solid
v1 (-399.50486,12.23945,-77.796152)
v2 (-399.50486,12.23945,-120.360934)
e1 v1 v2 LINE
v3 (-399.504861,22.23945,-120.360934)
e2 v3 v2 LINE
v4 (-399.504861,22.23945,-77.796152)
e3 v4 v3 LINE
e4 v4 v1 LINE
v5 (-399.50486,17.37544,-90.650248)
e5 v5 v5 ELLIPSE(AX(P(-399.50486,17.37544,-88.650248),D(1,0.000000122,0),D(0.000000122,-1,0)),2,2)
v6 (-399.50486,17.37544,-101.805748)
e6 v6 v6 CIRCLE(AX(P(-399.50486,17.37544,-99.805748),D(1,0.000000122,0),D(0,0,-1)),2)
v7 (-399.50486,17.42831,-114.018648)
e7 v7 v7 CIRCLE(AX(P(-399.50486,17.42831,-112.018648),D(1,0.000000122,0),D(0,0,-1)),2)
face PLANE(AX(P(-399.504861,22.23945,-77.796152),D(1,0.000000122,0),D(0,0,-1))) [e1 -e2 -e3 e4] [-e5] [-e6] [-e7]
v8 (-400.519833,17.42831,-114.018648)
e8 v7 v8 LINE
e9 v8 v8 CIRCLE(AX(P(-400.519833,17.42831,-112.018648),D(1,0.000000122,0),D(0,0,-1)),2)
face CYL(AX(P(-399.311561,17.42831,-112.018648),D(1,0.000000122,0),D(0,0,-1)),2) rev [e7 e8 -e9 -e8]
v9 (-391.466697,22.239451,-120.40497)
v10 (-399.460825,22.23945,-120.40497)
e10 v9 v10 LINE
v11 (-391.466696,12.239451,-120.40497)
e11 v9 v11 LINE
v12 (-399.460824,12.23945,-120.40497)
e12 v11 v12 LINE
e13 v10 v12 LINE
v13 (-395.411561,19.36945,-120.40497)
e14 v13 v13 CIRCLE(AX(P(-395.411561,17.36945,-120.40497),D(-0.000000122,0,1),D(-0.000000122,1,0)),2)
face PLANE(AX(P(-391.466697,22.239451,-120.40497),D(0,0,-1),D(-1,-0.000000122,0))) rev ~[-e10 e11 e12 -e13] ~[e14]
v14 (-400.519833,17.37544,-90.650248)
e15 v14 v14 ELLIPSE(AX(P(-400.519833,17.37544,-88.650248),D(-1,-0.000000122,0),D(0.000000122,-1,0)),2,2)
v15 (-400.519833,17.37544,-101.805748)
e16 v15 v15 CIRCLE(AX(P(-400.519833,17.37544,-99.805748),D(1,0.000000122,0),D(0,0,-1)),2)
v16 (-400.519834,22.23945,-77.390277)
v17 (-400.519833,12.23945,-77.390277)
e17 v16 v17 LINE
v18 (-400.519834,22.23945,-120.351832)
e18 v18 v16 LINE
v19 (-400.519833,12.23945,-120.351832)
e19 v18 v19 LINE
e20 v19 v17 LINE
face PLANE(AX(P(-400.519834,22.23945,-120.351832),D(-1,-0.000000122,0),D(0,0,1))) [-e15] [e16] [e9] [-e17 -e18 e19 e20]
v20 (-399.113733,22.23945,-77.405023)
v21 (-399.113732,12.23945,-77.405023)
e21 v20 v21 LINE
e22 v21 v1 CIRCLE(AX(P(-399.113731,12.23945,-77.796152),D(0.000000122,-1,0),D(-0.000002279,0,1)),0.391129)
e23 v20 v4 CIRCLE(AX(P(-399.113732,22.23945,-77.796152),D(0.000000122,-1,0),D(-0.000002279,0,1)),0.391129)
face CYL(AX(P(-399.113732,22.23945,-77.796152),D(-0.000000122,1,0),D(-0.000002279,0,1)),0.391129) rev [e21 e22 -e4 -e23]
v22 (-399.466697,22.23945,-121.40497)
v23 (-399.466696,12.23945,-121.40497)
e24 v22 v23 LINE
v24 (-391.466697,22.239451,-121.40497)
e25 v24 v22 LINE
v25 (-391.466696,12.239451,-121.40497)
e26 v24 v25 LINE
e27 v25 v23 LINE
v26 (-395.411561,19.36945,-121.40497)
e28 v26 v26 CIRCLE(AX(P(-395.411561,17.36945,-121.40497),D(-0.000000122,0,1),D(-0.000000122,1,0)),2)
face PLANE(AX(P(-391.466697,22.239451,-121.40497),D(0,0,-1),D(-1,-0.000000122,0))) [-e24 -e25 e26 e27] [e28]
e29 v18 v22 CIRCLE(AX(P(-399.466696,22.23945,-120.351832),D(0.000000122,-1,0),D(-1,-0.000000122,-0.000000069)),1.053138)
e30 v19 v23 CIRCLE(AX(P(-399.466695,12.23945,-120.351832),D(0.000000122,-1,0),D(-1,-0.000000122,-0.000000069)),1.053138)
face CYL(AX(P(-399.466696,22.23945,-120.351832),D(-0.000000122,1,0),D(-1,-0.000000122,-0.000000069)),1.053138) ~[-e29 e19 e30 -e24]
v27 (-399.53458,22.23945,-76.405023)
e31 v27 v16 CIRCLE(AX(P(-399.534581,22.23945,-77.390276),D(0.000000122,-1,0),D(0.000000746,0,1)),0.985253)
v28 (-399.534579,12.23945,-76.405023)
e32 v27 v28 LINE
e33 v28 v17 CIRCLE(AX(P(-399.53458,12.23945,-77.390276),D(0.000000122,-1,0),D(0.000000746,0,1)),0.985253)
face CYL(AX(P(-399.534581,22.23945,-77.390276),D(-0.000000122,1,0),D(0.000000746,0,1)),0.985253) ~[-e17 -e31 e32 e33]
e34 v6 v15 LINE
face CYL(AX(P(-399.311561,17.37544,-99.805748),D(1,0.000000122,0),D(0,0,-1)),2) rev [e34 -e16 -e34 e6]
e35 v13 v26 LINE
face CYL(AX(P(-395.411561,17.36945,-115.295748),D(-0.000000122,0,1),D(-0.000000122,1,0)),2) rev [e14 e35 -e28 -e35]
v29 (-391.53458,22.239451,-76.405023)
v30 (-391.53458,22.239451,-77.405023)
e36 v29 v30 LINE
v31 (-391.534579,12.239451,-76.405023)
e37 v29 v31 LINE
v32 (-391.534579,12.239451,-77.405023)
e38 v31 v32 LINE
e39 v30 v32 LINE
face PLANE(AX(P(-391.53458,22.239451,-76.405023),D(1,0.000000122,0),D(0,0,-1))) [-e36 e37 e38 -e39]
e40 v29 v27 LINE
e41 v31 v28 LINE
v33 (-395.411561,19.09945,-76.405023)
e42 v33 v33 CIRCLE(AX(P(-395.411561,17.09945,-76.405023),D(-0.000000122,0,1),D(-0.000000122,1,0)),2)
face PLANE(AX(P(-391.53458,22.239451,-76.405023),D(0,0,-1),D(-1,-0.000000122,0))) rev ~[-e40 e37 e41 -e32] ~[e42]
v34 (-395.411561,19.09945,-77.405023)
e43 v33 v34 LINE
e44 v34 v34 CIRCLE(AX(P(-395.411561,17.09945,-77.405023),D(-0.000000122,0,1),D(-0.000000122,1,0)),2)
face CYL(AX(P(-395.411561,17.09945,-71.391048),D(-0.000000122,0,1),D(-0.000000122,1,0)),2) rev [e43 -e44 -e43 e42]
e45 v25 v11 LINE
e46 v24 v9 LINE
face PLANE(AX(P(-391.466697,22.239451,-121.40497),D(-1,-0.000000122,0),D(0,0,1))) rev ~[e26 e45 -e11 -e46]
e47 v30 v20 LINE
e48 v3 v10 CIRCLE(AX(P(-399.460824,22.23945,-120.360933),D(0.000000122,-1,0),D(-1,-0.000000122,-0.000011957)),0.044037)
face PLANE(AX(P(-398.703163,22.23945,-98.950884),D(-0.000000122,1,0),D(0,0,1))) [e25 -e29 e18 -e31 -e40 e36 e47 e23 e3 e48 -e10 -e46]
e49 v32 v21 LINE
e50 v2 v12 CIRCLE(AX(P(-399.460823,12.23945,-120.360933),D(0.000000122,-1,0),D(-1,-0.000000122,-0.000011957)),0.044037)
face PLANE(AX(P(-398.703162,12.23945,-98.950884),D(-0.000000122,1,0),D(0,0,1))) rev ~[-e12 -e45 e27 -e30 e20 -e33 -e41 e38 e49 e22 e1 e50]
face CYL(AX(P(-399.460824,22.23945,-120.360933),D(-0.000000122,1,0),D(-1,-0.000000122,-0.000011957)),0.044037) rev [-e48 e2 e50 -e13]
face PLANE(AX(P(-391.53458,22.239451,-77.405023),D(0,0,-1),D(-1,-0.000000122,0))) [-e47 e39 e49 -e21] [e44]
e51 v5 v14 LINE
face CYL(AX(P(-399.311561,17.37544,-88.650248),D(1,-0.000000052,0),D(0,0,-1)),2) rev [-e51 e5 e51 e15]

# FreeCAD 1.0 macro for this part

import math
import FreeCAD as App
import Part
import Sketcher
Q = App.Units.Quantity

doc = App.newDocument("Part")
params = doc.addObject("Spreadsheet::Sheet", "Params")
for row, (alias, value) in enumerate([
    ("sketch1_diameter", "4 mm"),
    ("pad1_length", "10 mm"),
    ("sketch2_diameter", "4 mm"),
    ("pad2_length", "10 mm"),
    ("sketch3_diameter", "4 mm"),
    ("pad3_length", "2 mm"),
    ("sketch4_diameter", "4 mm"),
    ("pad4_length", "2 mm"),
    ("sketch5_diameter", "4 mm"),
    ("pad5_length", "2 mm"),
    ("sketch6_diameter", "4 mm"),
    ("pad6_length", "2 mm"),
    ("sketch7_diameter", "4 mm"),
    ("pad7_length", "2 mm"),
    ("sketch8_width", "1 mm"),
    ("sketch8_height", "8 mm"),
    ("pad8_length", "10 mm"),
], start=1):
    params.set(f"A{row}", alias)
    params.set(f"B{row}", "=" + value)
    params.setAlias(f"B{row}", alias)

body = doc.addObject("PartDesign::Body", "Body")

sketch1 = doc.addObject("Sketcher::SketchObject", "Sketch")
body.addObject(sketch1)
sketch1.AttachmentSupport = (doc.XY_Plane, [""])
sketch1.MapMode = "FlatFace"
sketch1.addGeometry(Part.Circle(App.Vector(0, 0, 0), App.Vector(0, 0, 1), 2), False)
sketch1.addConstraint([
    Sketcher.Constraint("Coincident", 0, 3, -1, 1),
    Sketcher.Constraint("Diameter", 0, Q("4 mm")),
])
sketch1.setExpression("Constraints[1]", "Params.sketch1_diameter")
pad1 = doc.addObject("PartDesign::Pad", "Pad")
body.addObject(pad1)
pad1.Profile = sketch1
pad1.setExpression("Length", "Params.pad1_length")
body2 = doc.addObject("PartDesign::Body", "Body001")
doc.recompute()

body.Placement = App.Placement(App.Vector(0, 0, 0), App.Rotation(App.Vector(0, 1, 0), 90))
boolean = doc.addObject("PartDesign::Boolean", "Boolean")
body2.addObject(boolean)
boolean.Type = "Fuse"
boolean.addObjects([body])
body3 = doc.addObject("PartDesign::Body", "Body002")
doc.recompute()

body2.Placement = App.Placement(App.Vector(15.49, 3.9, 4.87), App.Rotation(App.Vector(0, 0, 1), 0.000007))
boolean2 = doc.addObject("PartDesign::Boolean", "Boolean001")
body3.addObject(boolean2)
boolean2.Type = "Fuse"
boolean2.addObjects([body2])
body4 = doc.addObject("PartDesign::Body", "Body003")

sketch2 = doc.addObject("Sketcher::SketchObject", "Sketch001")
body4.addObject(sketch2)
sketch2.AttachmentSupport = (doc.getObject("XY_Plane003"), [""])
sketch2.MapMode = "FlatFace"
sketch2.addGeometry(Part.Circle(App.Vector(0, 0, 0), App.Vector(0, 0, 1), 2), False)
sketch2.addConstraint([
    Sketcher.Constraint("Coincident", 0, 3, -1, 1),
    Sketcher.Constraint("Diameter", 0, Q("4 mm")),
])
sketch2.setExpression("Constraints[1]", "Params.sketch2_diameter")
pad2 = doc.addObject("PartDesign::Pad", "Pad001")
body4.addObject(pad2)
pad2.Profile = sketch2
pad2.setExpression("Length", "Params.pad2_length")
body5 = doc.addObject("PartDesign::Body", "Body004")
doc.recompute()

body4.Placement = App.Placement(App.Vector(0, 0, 0), App.Rotation(App.Vector(0, 1, 0), 90))
boolean3 = doc.addObject("PartDesign::Boolean", "Boolean002")
body5.addObject(boolean3)
boolean3.Type = "Fuse"
boolean3.addObjects([body4])
body6 = doc.addObject("PartDesign::Body", "Body005")
doc.recompute()

body5.Placement = App.Placement(App.Vector(-28.4147, 3.9, 5.14), App.Rotation(App.Vector(0, 0, 1), 0.000007))
boolean4 = doc.addObject("PartDesign::Boolean", "Boolean003")
body6.addObject(boolean4)
boolean4.Type = "Fuse"
boolean4.addObjects([body5])
body7 = doc.addObject("PartDesign::Body", "Body006")

sketch3 = doc.addObject("Sketcher::SketchObject", "Sketch002")
body7.addObject(sketch3)
sketch3.AttachmentSupport = (doc.getObject("XY_Plane006"), [""])
sketch3.MapMode = "FlatFace"
sketch3.addGeometry(Part.Circle(App.Vector(0, 0, 0), App.Vector(0, 0, 1), 2), False)
sketch3.addConstraint([
    Sketcher.Constraint("Coincident", 0, 3, -1, 1),
    Sketcher.Constraint("Diameter", 0, Q("4 mm")),
])
sketch3.setExpression("Constraints[1]", "Params.sketch3_diameter")
pad3 = doc.addObject("PartDesign::Pad", "Pad002")
body7.addObject(pad3)
pad3.Profile = sketch3
pad3.setExpression("Length", "Params.pad3_length")
body8 = doc.addObject("PartDesign::Body", "Body007")
doc.recompute()

body7.Placement = App.Placement(App.Vector(0, 0, 0), App.Rotation(App.Vector(1, 0, 0), 271.492946))
boolean5 = doc.addObject("PartDesign::Boolean", "Boolean004")
body8.addObject(boolean5)
boolean5.Type = "Fuse"
boolean5.addObjects([body7])
body9 = doc.addObject("PartDesign::Body", "Body008")
doc.recompute()

body8.Placement = App.Placement(App.Vector(0, 0, 0), App.Rotation(App.Vector(0, 1, 0), 272.98249))
boolean6 = doc.addObject("PartDesign::Boolean", "Boolean005")
body9.addObject(boolean6)
boolean6.Type = "Fuse"
boolean6.addObjects([body8])
body10 = doc.addObject("PartDesign::Body", "Body009")
doc.recompute()

body9.Placement = App.Placement(App.Vector(-26, 5.29, 4.9), App.Rotation(App.Vector(0, 0, 1), 267.755985))
boolean7 = doc.addObject("PartDesign::Boolean", "Boolean006")
body10.addObject(boolean7)
boolean7.Type = "Fuse"
boolean7.addObjects([body9])
body11 = doc.addObject("PartDesign::Body", "Body010")

sketch4 = doc.addObject("Sketcher::SketchObject", "Sketch003")
body11.addObject(sketch4)
sketch4.AttachmentSupport = (doc.getObject("XY_Plane010"), [""])
sketch4.MapMode = "FlatFace"
sketch4.addGeometry(Part.Circle(App.Vector(0, 0, 0), App.Vector(0, 0, 1), 2), False)
sketch4.addConstraint([
    Sketcher.Constraint("Coincident", 0, 3, -1, 1),
    Sketcher.Constraint("Diameter", 0, Q("4 mm")),
])
sketch4.setExpression("Constraints[1]", "Params.sketch4_diameter")
pad4 = doc.addObject("PartDesign::Pad", "Pad003")
body11.addObject(pad4)
pad4.Profile = sketch4
pad4.setExpression("Length", "Params.pad4_length")
body12 = doc.addObject("PartDesign::Body", "Body011")
doc.recompute()

body11.Placement = App.Placement(App.Vector(-11.1555, 0, 4.86401), App.Rotation(App.Vector(1, 0, 0), 90.00001))
boolean8 = doc.addObject("PartDesign::Boolean", "Boolean007")
body12.addObject(boolean8)
boolean8.Type = "Fuse"
boolean8.addObjects([body11])
body13 = doc.addObject("PartDesign::Body", "Body012")

sketch5 = doc.addObject("Sketcher::SketchObject", "Sketch004")
body13.addObject(sketch5)
sketch5.AttachmentSupport = (doc.getObject("XY_Plane012"), [""])
sketch5.MapMode = "FlatFace"
sketch5.addGeometry(Part.Circle(App.Vector(0, 0, 0), App.Vector(0, 0, 1), 2), False)
sketch5.addConstraint([
    Sketcher.Constraint("Coincident", 0, 3, -1, 1),
    Sketcher.Constraint("Diameter", 0, Q("4 mm")),
])
sketch5.setExpression("Constraints[1]", "Params.sketch5_diameter")
pad5 = doc.addObject("PartDesign::Pad", "Pad004")
body13.addObject(pad5)
pad5.Profile = sketch5
pad5.setExpression("Length", "Params.pad5_length")
body14 = doc.addObject("PartDesign::Body", "Body013")
doc.recompute()

body13.Placement = App.Placement(App.Vector(0, 0, 0), App.Rotation(App.Vector(1, 0, 0), 90))
boolean9 = doc.addObject("PartDesign::Boolean", "Boolean008")
body14.addObject(boolean9)
boolean9.Type = "Fuse"
boolean9.addObjects([body13])
body15 = doc.addObject("PartDesign::Body", "Body014")
doc.recompute()

body14.Placement = App.Placement(App.Vector(0, 0, 4.86401), App.Rotation(App.Vector(0, 0, 1), 0))
boolean10 = doc.addObject("PartDesign::Boolean", "Boolean009")
body15.addObject(boolean10)
boolean10.Type = "Fuse"
boolean10.addObjects([body14])
body16 = doc.addObject("PartDesign::Body", "Body015")

sketch6 = doc.addObject("Sketcher::SketchObject", "Sketch005")
body16.addObject(sketch6)
sketch6.AttachmentSupport = (doc.getObject("XY_Plane015"), [""])
sketch6.MapMode = "FlatFace"
sketch6.addGeometry(Part.Circle(App.Vector(0, 0, 0), App.Vector(0, 0, 1), 2), False)
sketch6.addConstraint([
    Sketcher.Constraint("Coincident", 0, 3, -1, 1),
    Sketcher.Constraint("Diameter", 0, Q("4 mm")),
])
sketch6.setExpression("Constraints[1]", "Params.sketch6_diameter")
pad6 = doc.addObject("PartDesign::Pad", "Pad005")
body16.addObject(pad6)
pad6.Profile = sketch6
pad6.setExpression("Length", "Params.pad6_length")
body17 = doc.addObject("PartDesign::Body", "Body016")
doc.recompute()

body16.Placement = App.Placement(App.Vector(0, 0, 0), App.Rotation(App.Vector(1, 0, 0), 90))
boolean11 = doc.addObject("PartDesign::Boolean", "Boolean010")
body17.addObject(boolean11)
boolean11.Type = "Fuse"
boolean11.addObjects([body16])
body18 = doc.addObject("PartDesign::Body", "Body017")
doc.recompute()

body17.Placement = App.Placement(App.Vector(12.2129, 0, 4.81114), App.Rotation(App.Vector(0, 0, 1), 0))
boolean12 = doc.addObject("PartDesign::Boolean", "Boolean011")
body18.addObject(boolean12)
boolean12.Type = "Fuse"
boolean12.addObjects([body17])
body19 = doc.addObject("PartDesign::Body", "Body018")

sketch7 = doc.addObject("Sketcher::SketchObject", "Sketch006")
body19.addObject(sketch7)
sketch7.AttachmentSupport = (doc.getObject("XY_Plane018"), [""])
sketch7.MapMode = "FlatFace"
sketch7.addGeometry(Part.Circle(App.Vector(0, 0, 0), App.Vector(0, 0, 1), 2), False)
sketch7.addConstraint([
    Sketcher.Constraint("Coincident", 0, 3, -1, 1),
    Sketcher.Constraint("Diameter", 0, Q("4 mm")),
])
sketch7.setExpression("Constraints[1]", "Params.sketch7_diameter")
pad7 = doc.addObject("PartDesign::Pad", "Pad006")
body19.addObject(pad7)
pad7.Profile = sketch7
pad7.setExpression("Length", "Params.pad7_length")
body20 = doc.addObject("PartDesign::Body", "Body019")
doc.recompute()

body19.Placement = App.Placement(App.Vector(0, 0, 0), App.Rotation(App.Vector(1, 0, 0), 271.492946))
boolean13 = doc.addObject("PartDesign::Boolean", "Boolean012")
body20.addObject(boolean13)
boolean13.Type = "Fuse"
boolean13.addObjects([body19])
body21 = doc.addObject("PartDesign::Body", "Body020")
doc.recompute()

body20.Placement = App.Placement(App.Vector(0, 0, 0), App.Rotation(App.Vector(0, 1, 0), 272.98249))
boolean14 = doc.addObject("PartDesign::Boolean", "Boolean013")
body21.addObject(boolean14)
boolean14.Type = "Fuse"
boolean14.addObjects([body20])
body22 = doc.addObject("PartDesign::Body", "Body021")
doc.recompute()

body21.Placement = App.Placement(App.Vector(25, 5.38, 4.9), App.Rotation(App.Vector(0, 0, 1), 267.755985))
boolean15 = doc.addObject("PartDesign::Boolean", "Boolean014")
body22.addObject(boolean15)
boolean15.Type = "Fuse"
boolean15.addObjects([body21])
body23 = doc.addObject("PartDesign::Body", "Body022")

sketch8 = doc.addObject("Sketcher::SketchObject", "Sketch007")
body23.addObject(sketch8)
sketch8.AttachmentSupport = (doc.getObject("XY_Plane022"), [""])
sketch8.MapMode = "FlatFace"
sketch8.addGeometry([
    Part.LineSegment(App.Vector(-22.415, -1.208, 0), App.Vector(20.546, -1.208, 0)),
    Part.ArcOfCircle(Part.Circle(App.Vector(20.546, -0.155, 0), App.Vector(0, 0, 1), 1.053), math.radians(-90), math.radians(0)),
    Part.LineSegment(App.Vector(21.599, -0.155, 0), App.Vector(21.599, 7.845, 0)),
    Part.LineSegment(App.Vector(21.599, 7.845, 0), App.Vector(20.599, 7.845, 0)),
    Part.LineSegment(App.Vector(20.599, 7.845, 0), App.Vector(20.599, -0.149, 0)),
    Part.ArcOfCircle(Part.Circle(App.Vector(20.555, -0.149, 0), App.Vector(0, 0, 1), 0.044), math.radians(-90), math.radians(0)),
    Part.LineSegment(App.Vector(20.555, -0.193, 0), App.Vector(-22.01, -0.193, 0)),
    Part.ArcOfCircle(Part.Circle(App.Vector(-22.01, 0.198, 0), App.Vector(0, 0, 1), 0.391), math.radians(-180), math.radians(-90)),
    Part.LineSegment(App.Vector(-22.401, 0.198, 0), App.Vector(-22.401, 7.777, 0)),
    Part.LineSegment(App.Vector(-22.401, 7.777, 0), App.Vector(-23.401, 7.777, 0)),
    Part.LineSegment(App.Vector(-23.401, 7.777, 0), App.Vector(-23.401, -0.223, 0)),
    Part.ArcOfCircle(Part.Circle(App.Vector(-22.415, -0.223, 0), App.Vector(0, 0, 1), 0.985), math.radians(180), math.radians(270)),
], False)
sketch8.addConstraint([
    Sketcher.Constraint("Tangent", 0, 2, 1, 1),
    Sketcher.Constraint("Tangent", 1, 2, 2, 1),
    Sketcher.Constraint("Coincident", 2, 2, 3, 1),
    Sketcher.Constraint("Coincident", 3, 2, 4, 1),
    Sketcher.Constraint("Coincident", 4, 2, 5, 2),
    Sketcher.Constraint("Coincident", 5, 1, 6, 1),
    Sketcher.Constraint("Tangent", 6, 2, 7, 2),
    Sketcher.Constraint("Coincident", 7, 1, 8, 1),
    Sketcher.Constraint("Coincident", 8, 2, 9, 1),
    Sketcher.Constraint("Coincident", 9, 2, 10, 1),
    Sketcher.Constraint("Tangent", 10, 2, 11, 1),
    Sketcher.Constraint("Tangent", 11, 2, 0, 1),
    Sketcher.Constraint("Horizontal", 0),
    Sketcher.Constraint("Vertical", 2),
    Sketcher.Constraint("Horizontal", 3),
    Sketcher.Constraint("Vertical", 4),
    Sketcher.Constraint("Horizontal", 6),
    Sketcher.Constraint("Vertical", 8),
    Sketcher.Constraint("Horizontal", 9),
    Sketcher.Constraint("Vertical", 10),
    Sketcher.Constraint("Horizontal", 5, 3, 4, 2),
    Sketcher.Constraint("Equal", 3, 9),
    Sketcher.Constraint("Equal", 2, 10),
    Sketcher.Constraint("DistanceX", 3, 2, 3, 1, Q("1 mm")),
    Sketcher.Constraint("DistanceY", 2, 1, 2, 2, Q("8 mm")),
    Sketcher.Constraint("Radius", 1, Q("1.053138 mm")),
    Sketcher.Constraint("Radius", 7, Q("0.391129 mm")),
    Sketcher.Constraint("Radius", 5, Q("0.044037 mm")),
    Sketcher.Constraint("Radius", 11, Q("0.985253 mm")),
    Sketcher.Constraint("DistanceX", 6, 2, 6, 1, Q("42.564782 mm")),
    Sketcher.Constraint("DistanceY", 4, 2, 4, 1, Q("7.994128 mm")),
    Sketcher.Constraint("DistanceY", 5, 1, -1, 1, Q("0.193299 mm")),
    Sketcher.Constraint("DistanceX", 0, 2, 5, 1, Q("0.009102 mm")),
    Sketcher.Constraint("DistanceY", 11, 2, 7, 1, Q("1.406101 mm")),
    Sketcher.Constraint("DistanceX", 11, 3, -1, 1, Q("22.415472 mm")),
])
sketch8.setExpression("Constraints[23]", "Params.sketch8_width")
sketch8.setExpression("Constraints[24]", "Params.sketch8_height")
pad8 = doc.addObject("PartDesign::Pad", "Pad007")
body23.addObject(pad8)
pad8.Profile = sketch8
pad8.setExpression("Length", "Params.pad8_length")
doc.recompute()

boolean16 = doc.addObject("PartDesign::Boolean", "Boolean015")
body23.addObject(boolean16)
boolean16.Type = "Cut"
boolean16.addObjects([body22])
doc.recompute()

boolean17 = doc.addObject("PartDesign::Boolean", "Boolean016")
body23.addObject(boolean17)
boolean17.Type = "Cut"
boolean17.addObjects([body18])
doc.recompute()

boolean18 = doc.addObject("PartDesign::Boolean", "Boolean017")
body23.addObject(boolean18)
boolean18.Type = "Cut"
boolean18.addObjects([body15])
doc.recompute()

boolean19 = doc.addObject("PartDesign::Boolean", "Boolean018")
body23.addObject(boolean19)
boolean19.Type = "Cut"
boolean19.addObjects([body12])
doc.recompute()

boolean20 = doc.addObject("PartDesign::Boolean", "Boolean019")
body23.addObject(boolean20)
boolean20.Type = "Cut"
boolean20.addObjects([body10])
doc.recompute()

boolean21 = doc.addObject("PartDesign::Boolean", "Boolean020")
body23.addObject(boolean21)
boolean21.Type = "Cut"
boolean21.addObjects([body6])
doc.recompute()

boolean22 = doc.addObject("PartDesign::Boolean", "Boolean021")
body23.addObject(boolean22)
boolean22.Type = "Cut"
boolean22.addObjects([body3])
body24 = doc.addObject("PartDesign::Body", "Body023")
doc.recompute()

body23.Placement = App.Placement(App.Vector(0, 0, 0), App.Rotation(App.Vector(0, 1, 0), 90))
boolean23 = doc.addObject("PartDesign::Boolean", "Boolean022")
body24.addObject(boolean23)
boolean23.Type = "Fuse"
boolean23.addObjects([body23])
body25 = doc.addObject("PartDesign::Body", "Body024")
doc.recompute()

body24.Placement = App.Placement(App.Vector(-399.311562, 22.23945, -99.805748), App.Rotation(App.Vector(0, 0, 1), 270.000007))
boolean24 = doc.addObject("PartDesign::Boolean", "Boolean023")
body25.addObject(boolean24)
boolean24.Type = "Fuse"
boolean24.addObjects([body24])

doc.recompute()
